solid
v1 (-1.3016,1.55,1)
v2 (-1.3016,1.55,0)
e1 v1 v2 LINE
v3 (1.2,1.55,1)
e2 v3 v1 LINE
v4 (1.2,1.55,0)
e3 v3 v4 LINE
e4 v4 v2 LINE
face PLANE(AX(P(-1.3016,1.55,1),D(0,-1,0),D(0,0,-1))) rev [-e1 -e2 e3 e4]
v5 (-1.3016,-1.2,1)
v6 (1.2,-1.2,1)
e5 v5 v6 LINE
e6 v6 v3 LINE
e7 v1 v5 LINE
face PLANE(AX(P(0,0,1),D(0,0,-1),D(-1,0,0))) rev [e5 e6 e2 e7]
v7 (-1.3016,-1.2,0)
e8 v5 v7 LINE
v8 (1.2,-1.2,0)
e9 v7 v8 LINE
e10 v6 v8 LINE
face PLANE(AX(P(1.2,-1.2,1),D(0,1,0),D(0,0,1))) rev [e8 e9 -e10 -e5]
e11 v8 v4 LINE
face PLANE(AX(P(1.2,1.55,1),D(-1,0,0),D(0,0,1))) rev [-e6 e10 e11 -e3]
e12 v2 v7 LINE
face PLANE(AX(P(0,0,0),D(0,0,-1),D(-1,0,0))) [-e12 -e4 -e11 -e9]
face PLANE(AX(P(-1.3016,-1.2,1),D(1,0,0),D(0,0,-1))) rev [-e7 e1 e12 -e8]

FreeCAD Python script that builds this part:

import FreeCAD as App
import Part
import Sketcher
from FreeCAD import Vector
Q = App.Units.Quantity

doc = App.newDocument("Part")
body = doc.addObject("PartDesign::Body", "Body")

# Sketch on XY plane
sketch1 = body.newObject("Sketcher::SketchObject", "Sketch")
sketch1.AttachmentSupport = (doc.getObject("XY_Plane"), [""])
sketch1.MapMode = "FlatFace"
sketch1.addGeometry([
    Part.LineSegment(Vector(-1.3, 1.6, 0), Vector(-1.3, -1.2, 0)),
    Part.LineSegment(Vector(-1.3, -1.2, 0), Vector(1.2, -1.2, 0)),
    Part.LineSegment(Vector(1.2, -1.2, 0), Vector(1.2, 1.6, 0)),
    Part.LineSegment(Vector(1.2, 1.6, 0), Vector(-1.3, 1.6, 0)),
], False)
sketch1.addConstraint([
    Sketcher.Constraint("Coincident", 0, 2, 1, 1),
    Sketcher.Constraint("Coincident", 1, 2, 2, 1),
    Sketcher.Constraint("Coincident", 2, 2, 3, 1),
    Sketcher.Constraint("Coincident", 3, 2, 0, 1),
    Sketcher.Constraint("Vertical", 0),
    Sketcher.Constraint("Horizontal", 1),
    Sketcher.Constraint("Vertical", 2),
    Sketcher.Constraint("Horizontal", 3),
    Sketcher.Constraint("DistanceY", 0, 2, 0, 1, Q("2.75 mm")),
    Sketcher.Constraint("DistanceY", 0, 2, -1, 1, Q("1.2 mm")),
    Sketcher.Constraint("DistanceX", -1, 1, 1, 2, Q("1.2 mm")),
    Sketcher.Constraint("DistanceX", 1, 1, 1, 2, Q("2.5016 mm")),
])
pad1 = body.newObject("PartDesign::Pad", "Pad")
pad1.Profile = sketch1
pad1.Length = 1

doc.recompute()
